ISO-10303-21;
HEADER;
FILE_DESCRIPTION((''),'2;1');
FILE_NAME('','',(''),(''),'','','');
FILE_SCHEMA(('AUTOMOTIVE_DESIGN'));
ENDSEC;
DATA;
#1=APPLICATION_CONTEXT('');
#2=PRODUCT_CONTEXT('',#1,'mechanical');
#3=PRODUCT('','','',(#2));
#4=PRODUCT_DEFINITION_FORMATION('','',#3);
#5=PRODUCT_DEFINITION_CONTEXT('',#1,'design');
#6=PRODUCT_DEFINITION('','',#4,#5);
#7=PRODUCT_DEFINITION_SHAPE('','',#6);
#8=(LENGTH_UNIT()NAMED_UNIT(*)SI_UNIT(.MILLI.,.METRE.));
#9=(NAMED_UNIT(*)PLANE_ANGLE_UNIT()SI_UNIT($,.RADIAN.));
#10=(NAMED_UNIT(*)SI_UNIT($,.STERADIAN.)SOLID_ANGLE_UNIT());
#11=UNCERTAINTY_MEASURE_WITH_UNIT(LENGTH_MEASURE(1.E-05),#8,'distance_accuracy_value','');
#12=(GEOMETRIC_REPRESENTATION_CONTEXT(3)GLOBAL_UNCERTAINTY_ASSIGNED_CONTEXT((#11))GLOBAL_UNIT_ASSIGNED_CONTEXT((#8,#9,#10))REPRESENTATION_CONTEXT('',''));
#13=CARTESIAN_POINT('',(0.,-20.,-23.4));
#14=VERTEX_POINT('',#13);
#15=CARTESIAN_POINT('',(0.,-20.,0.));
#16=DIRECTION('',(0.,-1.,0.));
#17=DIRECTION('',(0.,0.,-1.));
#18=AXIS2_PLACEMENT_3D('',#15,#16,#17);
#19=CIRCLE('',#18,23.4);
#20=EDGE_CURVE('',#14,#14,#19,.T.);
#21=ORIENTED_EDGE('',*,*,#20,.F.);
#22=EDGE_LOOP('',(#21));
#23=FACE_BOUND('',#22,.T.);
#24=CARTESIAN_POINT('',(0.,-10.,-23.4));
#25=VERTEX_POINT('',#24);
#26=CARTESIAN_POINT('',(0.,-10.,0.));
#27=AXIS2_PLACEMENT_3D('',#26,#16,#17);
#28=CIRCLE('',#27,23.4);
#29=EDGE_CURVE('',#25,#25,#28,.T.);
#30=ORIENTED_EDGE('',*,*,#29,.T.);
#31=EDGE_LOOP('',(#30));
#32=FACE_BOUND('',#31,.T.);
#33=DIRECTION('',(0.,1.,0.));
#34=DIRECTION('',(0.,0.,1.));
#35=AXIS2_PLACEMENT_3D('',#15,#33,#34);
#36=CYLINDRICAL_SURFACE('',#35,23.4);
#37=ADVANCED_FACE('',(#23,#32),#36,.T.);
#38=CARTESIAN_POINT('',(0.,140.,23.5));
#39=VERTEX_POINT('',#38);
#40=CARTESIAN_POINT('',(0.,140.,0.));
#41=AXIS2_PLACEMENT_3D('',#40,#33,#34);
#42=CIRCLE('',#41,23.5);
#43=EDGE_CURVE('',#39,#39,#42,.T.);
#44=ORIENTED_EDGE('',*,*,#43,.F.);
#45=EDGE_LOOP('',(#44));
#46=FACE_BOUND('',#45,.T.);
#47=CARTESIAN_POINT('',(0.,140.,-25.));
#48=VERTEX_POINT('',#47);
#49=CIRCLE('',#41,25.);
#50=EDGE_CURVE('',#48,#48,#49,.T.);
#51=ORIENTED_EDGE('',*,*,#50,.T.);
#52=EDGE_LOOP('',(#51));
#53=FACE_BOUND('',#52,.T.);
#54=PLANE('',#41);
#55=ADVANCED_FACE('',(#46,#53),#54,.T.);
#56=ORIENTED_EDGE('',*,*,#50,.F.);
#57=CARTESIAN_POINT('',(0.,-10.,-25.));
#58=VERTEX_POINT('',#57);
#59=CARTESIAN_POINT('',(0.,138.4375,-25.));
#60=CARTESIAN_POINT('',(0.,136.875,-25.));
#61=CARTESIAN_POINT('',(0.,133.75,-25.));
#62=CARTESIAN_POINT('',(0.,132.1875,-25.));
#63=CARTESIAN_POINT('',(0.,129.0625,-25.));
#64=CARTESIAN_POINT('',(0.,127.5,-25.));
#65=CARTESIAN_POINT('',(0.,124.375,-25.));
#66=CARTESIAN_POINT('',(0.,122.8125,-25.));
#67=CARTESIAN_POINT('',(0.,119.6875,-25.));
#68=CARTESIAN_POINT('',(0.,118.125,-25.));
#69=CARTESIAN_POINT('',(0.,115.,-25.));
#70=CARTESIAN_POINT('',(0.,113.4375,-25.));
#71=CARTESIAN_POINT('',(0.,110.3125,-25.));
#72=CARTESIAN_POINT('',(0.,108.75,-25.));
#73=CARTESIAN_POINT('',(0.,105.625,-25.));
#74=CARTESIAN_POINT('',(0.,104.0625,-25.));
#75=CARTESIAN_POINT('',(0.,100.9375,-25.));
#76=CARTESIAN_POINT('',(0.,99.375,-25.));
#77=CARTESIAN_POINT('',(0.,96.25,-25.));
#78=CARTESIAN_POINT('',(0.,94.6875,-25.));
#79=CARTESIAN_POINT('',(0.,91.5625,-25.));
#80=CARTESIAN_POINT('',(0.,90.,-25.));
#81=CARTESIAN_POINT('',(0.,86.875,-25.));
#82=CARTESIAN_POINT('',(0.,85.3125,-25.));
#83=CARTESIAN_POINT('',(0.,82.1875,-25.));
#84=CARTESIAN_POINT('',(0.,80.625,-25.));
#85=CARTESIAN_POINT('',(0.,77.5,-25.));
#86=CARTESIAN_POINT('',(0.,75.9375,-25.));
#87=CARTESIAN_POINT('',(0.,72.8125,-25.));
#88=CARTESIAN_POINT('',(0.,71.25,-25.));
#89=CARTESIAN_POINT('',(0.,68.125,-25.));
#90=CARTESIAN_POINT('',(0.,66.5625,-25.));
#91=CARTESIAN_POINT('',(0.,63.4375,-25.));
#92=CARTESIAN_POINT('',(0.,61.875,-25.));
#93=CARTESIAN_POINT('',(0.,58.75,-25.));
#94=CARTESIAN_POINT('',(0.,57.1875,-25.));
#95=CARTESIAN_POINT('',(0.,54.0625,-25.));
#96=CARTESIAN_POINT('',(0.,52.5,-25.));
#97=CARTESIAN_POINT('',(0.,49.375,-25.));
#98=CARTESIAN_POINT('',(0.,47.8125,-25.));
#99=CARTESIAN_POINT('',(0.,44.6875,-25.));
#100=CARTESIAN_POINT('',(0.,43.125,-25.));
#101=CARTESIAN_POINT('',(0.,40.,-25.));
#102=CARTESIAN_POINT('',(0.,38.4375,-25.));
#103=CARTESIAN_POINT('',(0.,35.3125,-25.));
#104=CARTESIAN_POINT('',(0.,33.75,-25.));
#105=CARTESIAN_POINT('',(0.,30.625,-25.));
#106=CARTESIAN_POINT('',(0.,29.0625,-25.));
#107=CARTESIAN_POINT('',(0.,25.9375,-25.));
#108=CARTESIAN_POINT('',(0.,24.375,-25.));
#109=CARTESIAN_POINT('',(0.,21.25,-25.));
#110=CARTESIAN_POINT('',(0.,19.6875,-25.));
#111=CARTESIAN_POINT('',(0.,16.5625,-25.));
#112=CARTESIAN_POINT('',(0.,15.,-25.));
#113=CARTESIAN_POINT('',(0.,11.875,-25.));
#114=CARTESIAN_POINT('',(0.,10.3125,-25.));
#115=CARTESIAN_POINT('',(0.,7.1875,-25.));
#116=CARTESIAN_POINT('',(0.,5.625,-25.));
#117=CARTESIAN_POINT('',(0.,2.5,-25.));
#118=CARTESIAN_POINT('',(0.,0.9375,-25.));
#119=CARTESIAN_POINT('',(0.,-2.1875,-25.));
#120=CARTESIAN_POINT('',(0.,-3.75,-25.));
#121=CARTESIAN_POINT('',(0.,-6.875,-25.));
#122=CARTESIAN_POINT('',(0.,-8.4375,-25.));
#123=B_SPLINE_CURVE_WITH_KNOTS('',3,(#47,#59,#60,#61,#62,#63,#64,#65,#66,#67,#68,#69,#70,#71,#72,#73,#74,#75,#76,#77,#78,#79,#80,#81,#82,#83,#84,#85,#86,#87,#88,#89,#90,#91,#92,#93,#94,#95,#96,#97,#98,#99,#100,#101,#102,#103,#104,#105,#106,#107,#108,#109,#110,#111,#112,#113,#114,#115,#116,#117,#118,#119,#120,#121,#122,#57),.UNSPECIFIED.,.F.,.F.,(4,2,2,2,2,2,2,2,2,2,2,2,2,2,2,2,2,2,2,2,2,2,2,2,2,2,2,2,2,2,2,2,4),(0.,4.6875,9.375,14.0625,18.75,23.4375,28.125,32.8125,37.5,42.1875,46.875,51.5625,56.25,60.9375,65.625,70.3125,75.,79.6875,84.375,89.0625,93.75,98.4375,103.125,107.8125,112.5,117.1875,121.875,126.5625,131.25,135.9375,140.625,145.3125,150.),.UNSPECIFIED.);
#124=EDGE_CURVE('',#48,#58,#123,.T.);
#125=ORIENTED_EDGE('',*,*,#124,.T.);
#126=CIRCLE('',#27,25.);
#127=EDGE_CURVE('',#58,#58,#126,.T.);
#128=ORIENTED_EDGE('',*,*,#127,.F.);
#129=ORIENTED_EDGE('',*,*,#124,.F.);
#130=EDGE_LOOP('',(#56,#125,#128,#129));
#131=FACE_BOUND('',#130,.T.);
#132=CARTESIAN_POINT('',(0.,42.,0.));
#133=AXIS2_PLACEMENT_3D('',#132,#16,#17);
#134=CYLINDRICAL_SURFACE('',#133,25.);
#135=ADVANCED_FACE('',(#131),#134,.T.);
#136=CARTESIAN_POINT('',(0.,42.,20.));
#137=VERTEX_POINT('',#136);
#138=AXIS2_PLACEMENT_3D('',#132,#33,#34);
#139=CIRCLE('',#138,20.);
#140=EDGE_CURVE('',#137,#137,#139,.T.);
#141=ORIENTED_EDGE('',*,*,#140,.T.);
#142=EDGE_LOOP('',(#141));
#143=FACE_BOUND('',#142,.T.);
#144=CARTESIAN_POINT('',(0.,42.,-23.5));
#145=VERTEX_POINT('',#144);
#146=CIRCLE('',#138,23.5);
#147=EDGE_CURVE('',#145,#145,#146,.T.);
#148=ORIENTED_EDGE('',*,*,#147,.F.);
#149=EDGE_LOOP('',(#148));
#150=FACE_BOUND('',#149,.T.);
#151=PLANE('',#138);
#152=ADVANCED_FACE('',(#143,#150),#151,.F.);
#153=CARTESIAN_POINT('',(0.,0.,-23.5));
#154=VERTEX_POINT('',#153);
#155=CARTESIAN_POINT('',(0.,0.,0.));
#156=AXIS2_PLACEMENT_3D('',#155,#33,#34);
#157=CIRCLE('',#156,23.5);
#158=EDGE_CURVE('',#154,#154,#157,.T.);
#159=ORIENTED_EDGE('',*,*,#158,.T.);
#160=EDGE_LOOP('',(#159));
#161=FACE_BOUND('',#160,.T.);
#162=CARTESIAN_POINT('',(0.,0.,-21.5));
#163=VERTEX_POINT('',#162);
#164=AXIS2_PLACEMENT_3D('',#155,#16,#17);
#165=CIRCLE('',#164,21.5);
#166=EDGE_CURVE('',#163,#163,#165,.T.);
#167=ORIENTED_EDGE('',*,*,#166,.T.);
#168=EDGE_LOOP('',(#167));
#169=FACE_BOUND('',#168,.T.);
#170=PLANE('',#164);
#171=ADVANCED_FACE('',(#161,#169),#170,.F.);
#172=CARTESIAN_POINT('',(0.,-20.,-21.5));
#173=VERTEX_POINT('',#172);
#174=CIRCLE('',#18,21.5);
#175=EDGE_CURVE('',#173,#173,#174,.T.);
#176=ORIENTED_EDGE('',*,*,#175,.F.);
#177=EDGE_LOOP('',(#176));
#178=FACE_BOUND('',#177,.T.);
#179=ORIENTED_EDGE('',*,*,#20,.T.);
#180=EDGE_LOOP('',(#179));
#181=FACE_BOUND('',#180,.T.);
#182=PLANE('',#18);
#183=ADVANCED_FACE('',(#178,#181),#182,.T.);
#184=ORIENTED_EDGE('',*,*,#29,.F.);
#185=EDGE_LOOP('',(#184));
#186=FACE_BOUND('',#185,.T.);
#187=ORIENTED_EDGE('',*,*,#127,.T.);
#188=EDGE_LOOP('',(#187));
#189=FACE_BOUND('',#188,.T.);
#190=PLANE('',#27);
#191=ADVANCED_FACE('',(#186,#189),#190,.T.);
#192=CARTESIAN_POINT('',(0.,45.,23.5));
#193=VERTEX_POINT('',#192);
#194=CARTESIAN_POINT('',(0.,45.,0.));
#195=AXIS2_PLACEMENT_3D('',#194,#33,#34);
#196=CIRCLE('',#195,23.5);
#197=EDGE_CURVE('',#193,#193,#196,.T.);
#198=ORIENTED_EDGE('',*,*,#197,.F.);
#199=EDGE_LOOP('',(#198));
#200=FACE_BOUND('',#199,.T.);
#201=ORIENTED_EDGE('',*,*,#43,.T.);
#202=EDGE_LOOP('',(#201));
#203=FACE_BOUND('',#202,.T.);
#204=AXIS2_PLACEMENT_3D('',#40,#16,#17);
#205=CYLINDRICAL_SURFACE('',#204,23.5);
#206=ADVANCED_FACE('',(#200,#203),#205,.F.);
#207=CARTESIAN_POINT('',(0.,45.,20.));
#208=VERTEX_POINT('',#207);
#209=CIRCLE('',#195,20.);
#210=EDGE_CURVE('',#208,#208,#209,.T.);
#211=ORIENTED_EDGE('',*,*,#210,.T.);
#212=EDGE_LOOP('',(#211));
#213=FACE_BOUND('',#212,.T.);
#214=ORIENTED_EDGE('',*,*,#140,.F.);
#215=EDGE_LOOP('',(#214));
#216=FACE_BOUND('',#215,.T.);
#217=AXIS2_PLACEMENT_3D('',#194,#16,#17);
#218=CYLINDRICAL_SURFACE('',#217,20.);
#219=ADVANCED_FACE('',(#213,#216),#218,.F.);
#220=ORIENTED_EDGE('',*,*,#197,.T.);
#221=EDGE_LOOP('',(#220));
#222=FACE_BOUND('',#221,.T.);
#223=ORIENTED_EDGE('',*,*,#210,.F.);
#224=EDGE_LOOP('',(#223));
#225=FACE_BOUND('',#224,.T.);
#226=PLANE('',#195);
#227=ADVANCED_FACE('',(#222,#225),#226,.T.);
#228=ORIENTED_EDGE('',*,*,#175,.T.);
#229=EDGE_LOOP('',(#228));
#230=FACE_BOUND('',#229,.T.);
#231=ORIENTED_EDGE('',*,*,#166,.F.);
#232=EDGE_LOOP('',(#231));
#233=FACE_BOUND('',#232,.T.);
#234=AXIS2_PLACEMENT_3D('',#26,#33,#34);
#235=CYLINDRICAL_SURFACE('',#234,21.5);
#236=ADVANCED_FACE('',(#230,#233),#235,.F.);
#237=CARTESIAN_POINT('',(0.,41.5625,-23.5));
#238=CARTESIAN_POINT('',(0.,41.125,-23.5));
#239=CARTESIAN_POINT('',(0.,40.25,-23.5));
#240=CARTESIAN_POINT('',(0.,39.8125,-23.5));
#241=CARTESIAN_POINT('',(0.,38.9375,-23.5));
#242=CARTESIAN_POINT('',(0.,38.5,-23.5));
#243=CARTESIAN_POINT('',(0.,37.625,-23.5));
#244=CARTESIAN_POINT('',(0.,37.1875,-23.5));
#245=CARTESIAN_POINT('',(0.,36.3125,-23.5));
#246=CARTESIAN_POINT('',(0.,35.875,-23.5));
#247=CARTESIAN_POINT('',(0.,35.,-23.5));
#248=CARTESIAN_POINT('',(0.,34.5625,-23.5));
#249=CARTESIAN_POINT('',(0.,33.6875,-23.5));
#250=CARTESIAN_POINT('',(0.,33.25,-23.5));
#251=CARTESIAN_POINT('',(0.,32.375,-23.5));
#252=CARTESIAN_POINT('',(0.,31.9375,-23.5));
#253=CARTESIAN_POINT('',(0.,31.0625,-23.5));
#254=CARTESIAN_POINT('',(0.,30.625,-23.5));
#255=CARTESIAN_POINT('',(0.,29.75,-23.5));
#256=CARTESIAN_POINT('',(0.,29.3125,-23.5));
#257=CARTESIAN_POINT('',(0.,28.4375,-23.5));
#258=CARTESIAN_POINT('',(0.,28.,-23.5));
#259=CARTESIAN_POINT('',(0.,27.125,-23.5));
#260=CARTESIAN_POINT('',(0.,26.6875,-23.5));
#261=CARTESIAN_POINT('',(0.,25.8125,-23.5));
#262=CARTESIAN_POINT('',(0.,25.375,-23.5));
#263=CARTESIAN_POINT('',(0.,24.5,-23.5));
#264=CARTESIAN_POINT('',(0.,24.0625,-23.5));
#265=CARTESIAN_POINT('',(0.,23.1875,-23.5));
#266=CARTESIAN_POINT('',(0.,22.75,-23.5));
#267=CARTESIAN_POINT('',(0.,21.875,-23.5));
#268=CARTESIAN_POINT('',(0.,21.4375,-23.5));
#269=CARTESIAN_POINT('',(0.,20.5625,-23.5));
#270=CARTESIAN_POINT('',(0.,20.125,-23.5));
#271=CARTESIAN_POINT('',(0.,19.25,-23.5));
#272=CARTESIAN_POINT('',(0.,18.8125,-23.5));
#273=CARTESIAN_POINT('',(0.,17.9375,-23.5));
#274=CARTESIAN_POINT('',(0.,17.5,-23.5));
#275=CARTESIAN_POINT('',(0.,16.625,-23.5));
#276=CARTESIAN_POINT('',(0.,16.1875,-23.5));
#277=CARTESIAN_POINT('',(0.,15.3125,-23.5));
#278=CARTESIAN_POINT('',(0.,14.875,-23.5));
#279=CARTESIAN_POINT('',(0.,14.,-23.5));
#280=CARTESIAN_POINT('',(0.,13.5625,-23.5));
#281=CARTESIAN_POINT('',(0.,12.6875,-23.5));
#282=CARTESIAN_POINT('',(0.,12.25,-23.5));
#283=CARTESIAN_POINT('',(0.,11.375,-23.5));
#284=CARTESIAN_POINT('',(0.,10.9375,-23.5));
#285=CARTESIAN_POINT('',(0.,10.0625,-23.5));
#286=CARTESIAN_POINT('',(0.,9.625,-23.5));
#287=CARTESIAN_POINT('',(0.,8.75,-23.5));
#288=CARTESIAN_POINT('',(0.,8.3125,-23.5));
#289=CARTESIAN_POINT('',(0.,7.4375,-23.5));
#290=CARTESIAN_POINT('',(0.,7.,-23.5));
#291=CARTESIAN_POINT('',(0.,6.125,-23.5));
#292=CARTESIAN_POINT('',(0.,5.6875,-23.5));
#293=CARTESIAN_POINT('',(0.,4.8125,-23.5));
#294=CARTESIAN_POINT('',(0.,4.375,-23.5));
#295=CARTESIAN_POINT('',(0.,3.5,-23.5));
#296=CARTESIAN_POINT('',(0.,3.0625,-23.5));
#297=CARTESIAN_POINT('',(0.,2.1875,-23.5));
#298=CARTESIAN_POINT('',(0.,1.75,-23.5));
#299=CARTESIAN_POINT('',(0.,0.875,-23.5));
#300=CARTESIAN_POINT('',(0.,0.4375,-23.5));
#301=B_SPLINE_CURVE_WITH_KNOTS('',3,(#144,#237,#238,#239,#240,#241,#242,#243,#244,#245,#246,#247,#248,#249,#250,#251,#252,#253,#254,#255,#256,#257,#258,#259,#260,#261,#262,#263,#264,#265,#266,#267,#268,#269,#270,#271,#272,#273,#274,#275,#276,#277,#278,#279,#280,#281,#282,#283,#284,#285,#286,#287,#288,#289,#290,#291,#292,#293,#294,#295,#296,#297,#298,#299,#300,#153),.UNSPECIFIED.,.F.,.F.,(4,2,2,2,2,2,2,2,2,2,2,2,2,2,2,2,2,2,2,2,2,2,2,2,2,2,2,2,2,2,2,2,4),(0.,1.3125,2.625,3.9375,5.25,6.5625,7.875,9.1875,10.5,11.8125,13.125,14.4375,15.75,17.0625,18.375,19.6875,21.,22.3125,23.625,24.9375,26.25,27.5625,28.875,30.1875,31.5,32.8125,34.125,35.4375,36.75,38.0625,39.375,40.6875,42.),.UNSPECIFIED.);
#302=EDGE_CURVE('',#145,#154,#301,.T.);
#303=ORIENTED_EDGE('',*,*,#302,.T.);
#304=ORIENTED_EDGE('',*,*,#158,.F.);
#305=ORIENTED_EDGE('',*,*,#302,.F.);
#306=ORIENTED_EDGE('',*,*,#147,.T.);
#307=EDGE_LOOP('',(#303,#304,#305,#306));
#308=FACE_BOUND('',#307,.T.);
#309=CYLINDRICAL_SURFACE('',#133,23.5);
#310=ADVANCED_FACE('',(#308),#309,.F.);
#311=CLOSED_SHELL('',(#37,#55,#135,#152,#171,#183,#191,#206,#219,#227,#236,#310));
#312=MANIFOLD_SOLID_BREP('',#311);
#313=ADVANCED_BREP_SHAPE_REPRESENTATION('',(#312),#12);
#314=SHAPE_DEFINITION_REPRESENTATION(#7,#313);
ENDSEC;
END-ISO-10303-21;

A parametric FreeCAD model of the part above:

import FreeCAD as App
import Part
import Sketcher
Q = App.Units.Quantity

doc = App.newDocument("Part")
params = doc.addObject("Spreadsheet::Sheet", "Params")
for row, (alias, value) in enumerate([
    ("sketch1_diameter", "50 mm"),
    ("sketch1_diameter2", "47 mm"),
    ("pad1_length", "42 mm"),
    ("sketch2_diameter", "50 mm"),
    ("sketch2_diameter2", "40 mm"),
    ("pad2_length", "3 mm"),
    ("sketch3_diameter", "50 mm"),
    ("sketch3_diameter2", "47 mm"),
    ("pad3_length", "95 mm"),
    ("sketch4_diameter", "50 mm"),
    ("sketch4_diameter2", "43 mm"),
    ("pad4_length", "10 mm"),
    ("sketch5_diameter", "43 mm"),
    ("sketch5_diameter2", "46.8 mm"),
    ("pad5_length", "10 mm"),
], start=1):
    params.set(f"A{row}", alias)
    params.set(f"B{row}", "=" + value)
    params.setAlias(f"B{row}", alias)

body = doc.addObject("PartDesign::Body", "Body")

sketch1 = body.newObject("Sketcher::SketchObject", "Sketch")
sketch1.AttachmentSupport = (doc.getObject("XZ_Plane"), [""])
sketch1.MapMode = "FlatFace"
sketch1.addGeometry(Part.Circle(App.Vector(0, 0, 0), App.Vector(0, 0, 1), 25), False)
sketch1.addGeometry(Part.Circle(App.Vector(0, 0, 0), App.Vector(0, 0, 1), 23.5), False)
sketch1.addConstraint(Sketcher.Constraint("Coincident", 0, 3, -1, 1))
sketch1.addConstraint(Sketcher.Constraint("Coincident", 1, 3, -1, 1))
sketch1.addConstraint(Sketcher.Constraint("Diameter", 0, Q("50 mm")))
sketch1.addConstraint(Sketcher.Constraint("Diameter", 1, Q("47 mm")))
sketch1.setExpression("Constraints[2]", "Params.sketch1_diameter")
sketch1.setExpression("Constraints[3]", "Params.sketch1_diameter2")
pad1 = body.newObject("PartDesign::Pad", "Pad")
pad1.Profile = sketch1
pad1.setExpression("Length", "Params.pad1_length")
pad1.Reversed = True

sketch2 = body.newObject("Sketcher::SketchObject", "Sketch001")
sketch2.AttachmentSupport = (doc.getObject("XZ_Plane"), [""])
sketch2.MapMode = "FlatFace"
sketch2.AttachmentOffset = App.Placement(App.Vector(0, 0, -42), App.Rotation())
sketch2.addGeometry(Part.Circle(App.Vector(0, 0, 0), App.Vector(0, 0, 1), 25), False)
sketch2.addGeometry(Part.Circle(App.Vector(0, 0, 0), App.Vector(0, 0, 1), 20), False)
sketch2.addConstraint(Sketcher.Constraint("Coincident", 0, 3, -1, 1))
sketch2.addConstraint(Sketcher.Constraint("Coincident", 1, 3, -1, 1))
sketch2.addConstraint(Sketcher.Constraint("Diameter", 0, Q("50 mm")))
sketch2.addConstraint(Sketcher.Constraint("Diameter", 1, Q("40 mm")))
sketch2.setExpression("Constraints[2]", "Params.sketch2_diameter")
sketch2.setExpression("Constraints[3]", "Params.sketch2_diameter2")
pad2 = body.newObject("PartDesign::Pad", "Pad001")
pad2.Profile = sketch2
pad2.setExpression("Length", "Params.pad2_length")
pad2.Reversed = True

sketch3 = body.newObject("Sketcher::SketchObject", "Sketch002")
sketch3.AttachmentSupport = (doc.getObject("XZ_Plane"), [""])
sketch3.MapMode = "FlatFace"
sketch3.AttachmentOffset = App.Placement(App.Vector(0, 0, -45), App.Rotation())
sketch3.addGeometry(Part.Circle(App.Vector(0, 0, 0), App.Vector(0, 0, 1), 25), False)
sketch3.addGeometry(Part.Circle(App.Vector(0, 0, 0), App.Vector(0, 0, 1), 23.5), False)
sketch3.addConstraint(Sketcher.Constraint("Coincident", 0, 3, -1, 1))
sketch3.addConstraint(Sketcher.Constraint("Coincident", 1, 3, -1, 1))
sketch3.addConstraint(Sketcher.Constraint("Diameter", 0, Q("50 mm")))
sketch3.addConstraint(Sketcher.Constraint("Diameter", 1, Q("47 mm")))
sketch3.setExpression("Constraints[2]", "Params.sketch3_diameter")
sketch3.setExpression("Constraints[3]", "Params.sketch3_diameter2")
pad3 = body.newObject("PartDesign::Pad", "Pad002")
pad3.Profile = sketch3
pad3.setExpression("Length", "Params.pad3_length")
pad3.Reversed = True

sketch4 = body.newObject("Sketcher::SketchObject", "Sketch003")
sketch4.AttachmentSupport = (doc.getObject("XZ_Plane"), [""])
sketch4.MapMode = "FlatFace"
sketch4.AttachmentOffset = App.Placement(App.Vector(0, 0, 10), App.Rotation())
sketch4.addGeometry(Part.Circle(App.Vector(0, 0, 0), App.Vector(0, 0, 1), 25), False)
sketch4.addGeometry(Part.Circle(App.Vector(0, 0, 0), App.Vector(0, 0, 1), 21.5), False)
sketch4.addConstraint(Sketcher.Constraint("Coincident", 0, 3, -1, 1))
sketch4.addConstraint(Sketcher.Constraint("Coincident", 1, 3, -1, 1))
sketch4.addConstraint(Sketcher.Constraint("Diameter", 0, Q("50 mm")))
sketch4.addConstraint(Sketcher.Constraint("Diameter", 1, Q("43 mm")))
sketch4.setExpression("Constraints[2]", "Params.sketch4_diameter")
sketch4.setExpression("Constraints[3]", "Params.sketch4_diameter2")
pad4 = body.newObject("PartDesign::Pad", "Pad003")
pad4.Profile = sketch4
pad4.setExpression("Length", "Params.pad4_length")
pad4.Reversed = True

sketch5 = body.newObject("Sketcher::SketchObject", "Sketch004")
sketch5.AttachmentSupport = (doc.getObject("XZ_Plane"), [""])
sketch5.MapMode = "FlatFace"
sketch5.AttachmentOffset = App.Placement(App.Vector(0, 0, 20), App.Rotation())
sketch5.addGeometry(Part.Circle(App.Vector(0, 0, 0), App.Vector(0, 0, 1), 23.4), False)
sketch5.addGeometry(Part.Circle(App.Vector(0, 0, 0), App.Vector(0, 0, 1), 21.5), False)
sketch5.addConstraint(Sketcher.Constraint("Coincident", 0, 3, -1, 1))
sketch5.addConstraint(Sketcher.Constraint("Coincident", 1, 3, -1, 1))
sketch5.addConstraint(Sketcher.Constraint("Diameter", 1, Q("43 mm")))
sketch5.addConstraint(Sketcher.Constraint("Diameter", 0, Q("46.8 mm")))
sketch5.setExpression("Constraints[2]", "Params.sketch5_diameter")
sketch5.setExpression("Constraints[3]", "Params.sketch5_diameter2")
pad5 = body.newObject("PartDesign::Pad", "Pad004")
pad5.Profile = sketch5
pad5.setExpression("Length", "Params.pad5_length")
pad5.Reversed = True

doc.recompute()
